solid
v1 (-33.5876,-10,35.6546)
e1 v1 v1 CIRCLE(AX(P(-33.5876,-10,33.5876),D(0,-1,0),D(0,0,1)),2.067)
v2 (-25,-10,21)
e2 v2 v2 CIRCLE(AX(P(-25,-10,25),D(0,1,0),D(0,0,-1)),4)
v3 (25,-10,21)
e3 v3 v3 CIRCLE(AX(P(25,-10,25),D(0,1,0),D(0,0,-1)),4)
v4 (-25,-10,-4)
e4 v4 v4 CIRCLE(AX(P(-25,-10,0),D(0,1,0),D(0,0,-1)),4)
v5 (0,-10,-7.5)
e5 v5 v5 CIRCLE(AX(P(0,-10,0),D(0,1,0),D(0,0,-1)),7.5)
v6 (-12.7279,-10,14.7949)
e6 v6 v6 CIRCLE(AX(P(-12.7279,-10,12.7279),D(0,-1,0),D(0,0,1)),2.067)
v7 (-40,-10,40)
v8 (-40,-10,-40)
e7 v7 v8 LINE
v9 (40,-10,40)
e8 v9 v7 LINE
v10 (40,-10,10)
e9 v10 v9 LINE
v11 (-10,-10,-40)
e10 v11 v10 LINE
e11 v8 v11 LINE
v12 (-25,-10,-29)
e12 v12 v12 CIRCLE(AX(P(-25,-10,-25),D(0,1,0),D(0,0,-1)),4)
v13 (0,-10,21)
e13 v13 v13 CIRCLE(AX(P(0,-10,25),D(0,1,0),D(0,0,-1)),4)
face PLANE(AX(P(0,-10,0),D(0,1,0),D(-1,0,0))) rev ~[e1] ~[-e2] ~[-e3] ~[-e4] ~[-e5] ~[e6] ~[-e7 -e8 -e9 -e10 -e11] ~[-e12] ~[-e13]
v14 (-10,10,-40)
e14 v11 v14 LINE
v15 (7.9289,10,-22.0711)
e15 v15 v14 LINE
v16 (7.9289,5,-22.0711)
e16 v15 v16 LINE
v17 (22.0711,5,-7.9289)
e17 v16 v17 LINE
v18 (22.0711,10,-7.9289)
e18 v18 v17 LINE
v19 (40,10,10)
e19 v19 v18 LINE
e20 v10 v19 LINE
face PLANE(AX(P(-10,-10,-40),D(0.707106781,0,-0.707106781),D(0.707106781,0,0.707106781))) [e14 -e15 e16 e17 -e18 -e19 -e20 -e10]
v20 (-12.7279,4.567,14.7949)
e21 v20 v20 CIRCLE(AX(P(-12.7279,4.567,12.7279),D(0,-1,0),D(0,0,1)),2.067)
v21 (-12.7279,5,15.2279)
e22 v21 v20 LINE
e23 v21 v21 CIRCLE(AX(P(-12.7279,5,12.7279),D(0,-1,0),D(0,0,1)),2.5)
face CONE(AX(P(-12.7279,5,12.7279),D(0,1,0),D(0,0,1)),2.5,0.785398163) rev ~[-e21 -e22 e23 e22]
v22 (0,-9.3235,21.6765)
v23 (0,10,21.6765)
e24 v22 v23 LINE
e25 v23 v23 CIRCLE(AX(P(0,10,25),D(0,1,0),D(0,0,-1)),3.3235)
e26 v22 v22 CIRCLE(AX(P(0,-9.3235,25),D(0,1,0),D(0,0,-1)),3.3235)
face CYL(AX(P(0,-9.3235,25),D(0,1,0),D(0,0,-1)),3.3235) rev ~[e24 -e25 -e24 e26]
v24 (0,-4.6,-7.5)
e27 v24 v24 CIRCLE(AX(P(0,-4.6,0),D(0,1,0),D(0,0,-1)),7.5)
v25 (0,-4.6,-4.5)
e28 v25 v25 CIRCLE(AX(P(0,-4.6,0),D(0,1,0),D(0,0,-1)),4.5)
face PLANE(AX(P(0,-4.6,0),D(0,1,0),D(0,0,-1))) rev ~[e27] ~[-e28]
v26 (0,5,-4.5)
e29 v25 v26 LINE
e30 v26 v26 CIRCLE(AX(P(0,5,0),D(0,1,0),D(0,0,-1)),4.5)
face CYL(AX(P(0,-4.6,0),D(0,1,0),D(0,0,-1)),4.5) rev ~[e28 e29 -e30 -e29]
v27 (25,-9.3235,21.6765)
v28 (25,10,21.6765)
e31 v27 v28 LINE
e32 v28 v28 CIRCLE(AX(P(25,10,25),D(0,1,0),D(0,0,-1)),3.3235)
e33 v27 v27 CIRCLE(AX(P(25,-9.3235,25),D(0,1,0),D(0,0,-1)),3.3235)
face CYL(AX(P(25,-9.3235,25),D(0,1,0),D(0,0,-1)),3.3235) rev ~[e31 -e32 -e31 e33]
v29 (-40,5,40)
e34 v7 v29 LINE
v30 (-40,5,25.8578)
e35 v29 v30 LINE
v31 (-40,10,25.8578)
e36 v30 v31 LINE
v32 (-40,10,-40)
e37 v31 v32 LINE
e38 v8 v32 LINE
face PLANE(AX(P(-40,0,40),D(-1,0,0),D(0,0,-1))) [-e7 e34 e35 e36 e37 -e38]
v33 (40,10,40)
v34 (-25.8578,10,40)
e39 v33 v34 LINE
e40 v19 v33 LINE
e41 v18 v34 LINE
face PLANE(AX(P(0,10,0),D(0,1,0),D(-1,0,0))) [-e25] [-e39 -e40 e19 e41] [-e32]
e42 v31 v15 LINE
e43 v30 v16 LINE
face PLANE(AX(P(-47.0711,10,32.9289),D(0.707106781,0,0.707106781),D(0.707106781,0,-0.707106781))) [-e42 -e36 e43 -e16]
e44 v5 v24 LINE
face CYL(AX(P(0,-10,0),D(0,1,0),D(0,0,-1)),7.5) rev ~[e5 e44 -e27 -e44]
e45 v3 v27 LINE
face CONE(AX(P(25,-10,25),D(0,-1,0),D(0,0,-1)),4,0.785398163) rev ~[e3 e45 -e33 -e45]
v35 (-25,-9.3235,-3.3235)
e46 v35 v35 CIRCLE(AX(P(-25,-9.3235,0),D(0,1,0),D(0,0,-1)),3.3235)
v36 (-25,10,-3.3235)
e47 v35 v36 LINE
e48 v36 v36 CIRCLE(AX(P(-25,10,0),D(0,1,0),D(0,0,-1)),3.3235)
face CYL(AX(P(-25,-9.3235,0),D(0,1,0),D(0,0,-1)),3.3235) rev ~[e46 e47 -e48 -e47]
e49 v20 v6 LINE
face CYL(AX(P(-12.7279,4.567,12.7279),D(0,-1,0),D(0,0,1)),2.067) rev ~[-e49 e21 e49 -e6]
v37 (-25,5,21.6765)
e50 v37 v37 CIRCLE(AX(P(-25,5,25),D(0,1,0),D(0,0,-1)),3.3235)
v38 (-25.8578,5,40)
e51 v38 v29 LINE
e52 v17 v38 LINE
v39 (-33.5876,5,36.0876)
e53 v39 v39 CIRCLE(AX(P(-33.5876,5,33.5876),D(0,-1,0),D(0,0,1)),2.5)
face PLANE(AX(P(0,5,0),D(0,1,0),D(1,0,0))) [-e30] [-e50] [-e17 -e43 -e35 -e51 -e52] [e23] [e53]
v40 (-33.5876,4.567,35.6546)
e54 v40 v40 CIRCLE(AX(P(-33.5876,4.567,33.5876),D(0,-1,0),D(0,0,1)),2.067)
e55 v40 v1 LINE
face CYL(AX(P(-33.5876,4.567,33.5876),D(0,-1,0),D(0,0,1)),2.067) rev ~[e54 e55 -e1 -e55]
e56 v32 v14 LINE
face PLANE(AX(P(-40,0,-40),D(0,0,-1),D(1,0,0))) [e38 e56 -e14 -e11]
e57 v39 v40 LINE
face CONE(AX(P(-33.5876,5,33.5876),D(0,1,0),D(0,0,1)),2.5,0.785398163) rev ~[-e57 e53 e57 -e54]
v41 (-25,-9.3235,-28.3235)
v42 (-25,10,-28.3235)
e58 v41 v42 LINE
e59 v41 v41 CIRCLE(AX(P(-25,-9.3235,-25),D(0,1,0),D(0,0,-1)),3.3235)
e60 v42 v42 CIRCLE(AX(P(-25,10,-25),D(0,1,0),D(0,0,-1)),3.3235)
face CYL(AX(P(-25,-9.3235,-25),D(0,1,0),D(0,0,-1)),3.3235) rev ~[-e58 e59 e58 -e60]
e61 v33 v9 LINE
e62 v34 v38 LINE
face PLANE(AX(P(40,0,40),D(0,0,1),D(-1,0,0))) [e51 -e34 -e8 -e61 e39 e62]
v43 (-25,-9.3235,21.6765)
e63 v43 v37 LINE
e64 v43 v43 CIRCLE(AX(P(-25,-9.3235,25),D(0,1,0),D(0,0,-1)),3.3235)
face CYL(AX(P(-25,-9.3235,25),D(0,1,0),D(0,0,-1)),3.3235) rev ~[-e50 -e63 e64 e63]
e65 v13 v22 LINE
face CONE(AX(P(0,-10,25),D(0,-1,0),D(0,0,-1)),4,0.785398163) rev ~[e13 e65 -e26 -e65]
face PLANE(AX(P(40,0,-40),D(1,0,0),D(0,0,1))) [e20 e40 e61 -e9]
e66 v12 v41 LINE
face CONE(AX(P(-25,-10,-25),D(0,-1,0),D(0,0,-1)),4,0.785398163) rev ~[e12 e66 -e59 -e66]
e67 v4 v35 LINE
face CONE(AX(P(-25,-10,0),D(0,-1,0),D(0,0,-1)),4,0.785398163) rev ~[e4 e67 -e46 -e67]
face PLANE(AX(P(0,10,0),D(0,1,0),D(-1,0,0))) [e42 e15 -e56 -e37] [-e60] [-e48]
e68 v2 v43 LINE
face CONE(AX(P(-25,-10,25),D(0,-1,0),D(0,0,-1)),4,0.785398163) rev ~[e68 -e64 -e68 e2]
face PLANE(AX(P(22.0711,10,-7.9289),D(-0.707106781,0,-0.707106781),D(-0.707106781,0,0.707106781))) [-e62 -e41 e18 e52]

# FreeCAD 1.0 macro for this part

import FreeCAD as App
import Part
import Sketcher
Q = App.Units.Quantity

doc = App.newDocument("Part")
body = doc.addObject("PartDesign::Body", "Body")

sketch1 = doc.addObject("Sketcher::SketchObject", "Sketch")
body.addObject(sketch1)
sketch1.AttachmentSupport = (doc.XZ_Plane, [""])
sketch1.MapMode = "FlatFace"
sketch1.addGeometry(Part.LineSegment(App.Vector(40, -40, 0), App.Vector(-40, -40, 0)), False)
sketch1.addGeometry(Part.LineSegment(App.Vector(-40, -40, 0), App.Vector(-40, 40, 0)), False)
sketch1.addGeometry(Part.LineSegment(App.Vector(-40, 40, 0), App.Vector(40, 40, 0)), False)
sketch1.addGeometry(Part.LineSegment(App.Vector(40, 40, 0), App.Vector(40, -40, 0)), False)
sketch1.addConstraint(Sketcher.Constraint("Coincident", 0, 2, 1, 1))
sketch1.addConstraint(Sketcher.Constraint("Coincident", 1, 2, 2, 1))
sketch1.addConstraint(Sketcher.Constraint("Coincident", 2, 2, 3, 1))
sketch1.addConstraint(Sketcher.Constraint("Coincident", 3, 2, 0, 1))
sketch1.addConstraint(Sketcher.Constraint("Horizontal", 0))
sketch1.addConstraint(Sketcher.Constraint("Vertical", 1))
sketch1.addConstraint(Sketcher.Constraint("Horizontal", 2))
sketch1.addConstraint(Sketcher.Constraint("Vertical", 3))
sketch1.addConstraint(Sketcher.Constraint("Symmetric", 0, 2, 2, 2, -1, 1))
sketch1.addConstraint(Sketcher.Constraint("Equal", 2, 1))
sketch1.addConstraint(Sketcher.Constraint("DistanceX", 0, 2, 0, 1, Q("80 mm")))
pad1 = doc.addObject("PartDesign::Pad", "Pad")
body.addObject(pad1)
pad1.Profile = sketch1
pad1.Length = 20
pad1.Midplane = True

sketch2 = doc.addObject("Sketcher::SketchObject", "Sketch001")
body.addObject(sketch2)
sketch2.AttachmentSupport = (doc.XZ_Plane, [""])
sketch2.MapMode = "FlatFace"
sketch2.AttachmentOffset = App.Placement(App.Vector(0, 0, 10), App.Rotation())
sketch2.addGeometry(Part.LineSegment(App.Vector(40, 10, 0), App.Vector(-10, -40, 0)), False)
sketch2.addGeometry(Part.LineSegment(App.Vector(-10, -40, 0), App.Vector(40, -40, 0)), False)
sketch2.addGeometry(Part.LineSegment(App.Vector(40, -40, 0), App.Vector(40, 10, 0)), False)
sketch2.addConstraint(Sketcher.Constraint("Coincident", 0, 2, 1, 1))
sketch2.addConstraint(Sketcher.Constraint("Coincident", 1, 2, 2, 1))
sketch2.addConstraint(Sketcher.Constraint("Coincident", 2, 2, 0, 1))
sketch2.addConstraint(Sketcher.Constraint("Horizontal", 1))
sketch2.addConstraint(Sketcher.Constraint("Vertical", 2))
sketch2.addConstraint(Sketcher.Constraint("Equal", 1, 2))
sketch2.addConstraint(Sketcher.Constraint("DistanceX", 1, 1, 1, 2, Q("50 mm")))
sketch2.addConstraint(Sketcher.Constraint("DistanceX", 0, 2, -1, 1, Q("10 mm")))
sketch2.addConstraint(Sketcher.Constraint("DistanceY", 0, 2, -1, 1, Q("40 mm")))
pocket1 = doc.addObject("PartDesign::Pocket", "Pocket")
body.addObject(pocket1)
pocket1.Profile = sketch2
pocket1.Type = "ThroughAll"

sketch3 = doc.addObject("Sketcher::SketchObject", "Sketch002")
body.addObject(sketch3)
sketch3.AttachmentSupport = (doc.XZ_Plane, [""])
sketch3.MapMode = "FlatFace"
sketch3.AttachmentOffset = App.Placement(App.Vector(0, 0, 10), App.Rotation())
sketch3.addGeometry(Part.Circle(App.Vector(0, 0, 0), App.Vector(0, 0, 1), 4.5), False)
sketch3.addConstraint(Sketcher.Constraint("Coincident", 0, 3, -1, 1))
sketch3.addConstraint(Sketcher.Constraint("Diameter", 0, Q("9 mm")))
doc.recompute()
hole = doc.addObject("PartDesign::Hole", "Hole")
body.addObject(hole)
hole.Profile = sketch3
hole.ThreadType = "None"
hole.Diameter = 9
hole.DepthType = "ThroughAll"
hole.HoleCutType = "Counterbore"
hole.HoleCutDiameter = 15
hole.HoleCutDepth = 5.4

sketch4 = doc.addObject("Sketcher::SketchObject", "Sketch003")
body.addObject(sketch4)
sketch4.AttachmentSupport = (doc.XZ_Plane, [""])
sketch4.MapMode = "FlatFace"
sketch4.AttachmentOffset = App.Placement(App.Vector(0, 0, -10), App.Rotation())
sketch4.addGeometry(Part.LineSegment(App.Vector(-33, 47, 0), App.Vector(22, -8, 0)), False)
sketch4.addGeometry(Part.LineSegment(App.Vector(22, -8, 0), App.Vector(8, -22, 0)), False)
sketch4.addGeometry(Part.LineSegment(App.Vector(8, -22, 0), App.Vector(-47, 33, 0)), False)
sketch4.addGeometry(Part.LineSegment(App.Vector(-47, 33, 0), App.Vector(-33, 47, 0)), False)
sketch4.addConstraint(Sketcher.Constraint("Coincident", 0, 2, 1, 1))
sketch4.addConstraint(Sketcher.Constraint("Coincident", 1, 2, 2, 1))
sketch4.addConstraint(Sketcher.Constraint("Coincident", 2, 2, 3, 1))
sketch4.addConstraint(Sketcher.Constraint("Coincident", 3, 2, 0, 1))
sketch4.addConstraint(Sketcher.Constraint("Perpendicular", 0, 1))
sketch4.addConstraint(Sketcher.Constraint("Perpendicular", 1, 2))
sketch4.addConstraint(Sketcher.Constraint("Perpendicular", 2, 3))
sketch4.addConstraint(Sketcher.Constraint("Distance", 1, Q("20 mm")))
sketch4.addConstraint(Sketcher.Constraint("Angle", 0, Q("-45 deg")))
sketch4.addConstraint(Sketcher.Constraint("DistanceX", 2, 2, 1, 2, Q("55 mm")))
sketch4.addConstraint(Sketcher.Constraint("DistanceX", -1, 1, 0, 2, Q("22.071 mm")))
sketch4.addConstraint(Sketcher.Constraint("DistanceY", 0, 2, -1, 1, Q("7.929 mm")))
pocket2 = doc.addObject("PartDesign::Pocket", "Pocket001")
body.addObject(pocket2)
pocket2.Profile = sketch4
pocket2.Length = 5
pocket2.Reversed = True

sketch5 = doc.addObject("Sketcher::SketchObject", "Sketch004")
body.addObject(sketch5)
sketch5.AttachmentSupport = (doc.XZ_Plane, [""])
sketch5.MapMode = "FlatFace"
sketch5.AttachmentOffset = App.Placement(App.Vector(0, 0, 10), App.Rotation())
sketch5.addGeometry(Part.Circle(App.Vector(-25, 25, 0), App.Vector(0, 0, 1), 3.3), False)
sketch5.addGeometry(Part.Circle(App.Vector(-25, 0, 0), App.Vector(0, 0, 1), 3.3), False)
sketch5.addGeometry(Part.Circle(App.Vector(-25, -25, 0), App.Vector(0, 0, 1), 3.3), False)
sketch5.addGeometry(Part.Circle(App.Vector(0, 25, 0), App.Vector(0, 0, 1), 3.3), False)
sketch5.addGeometry(Part.Circle(App.Vector(25, 25, 0), App.Vector(0, 0, 1), 3.3), False)
sketch5.addConstraint(Sketcher.Constraint("Equal", 0, 1))
sketch5.addConstraint(Sketcher.Constraint("Equal", 1, 2))
sketch5.addConstraint(Sketcher.Constraint("Equal", 2, 3))
sketch5.addConstraint(Sketcher.Constraint("Equal", 3, 4))
sketch5.addConstraint(Sketcher.Constraint("Symmetric", 2, 3, 4, 3, -1, 1))
sketch5.addConstraint(Sketcher.Constraint("Symmetric", 0, 3, 4, 3, -2))
sketch5.addConstraint(Sketcher.Constraint("PointOnObject", 1, 3, -1))
sketch5.addConstraint(Sketcher.Constraint("PointOnObject", 3, 3, -2))
sketch5.addConstraint(Sketcher.Constraint("Horizontal", 0, 3, 3, 3))
sketch5.addConstraint(Sketcher.Constraint("Vertical", 0, 3, 1, 3))
sketch5.addConstraint(Sketcher.Constraint("Diameter", 0, Q("6.647 mm")))
sketch5.addConstraint(Sketcher.Constraint("DistanceX", 0, 3, -1, 1, Q("25 mm")))
sketch5.addConstraint(Sketcher.Constraint("DistanceY", -1, 1, 0, 3, Q("25 mm")))
doc.recompute()
hole2 = doc.addObject("PartDesign::Hole", "Hole001")
body.addObject(hole2)
hole2.Profile = sketch5
hole2.ThreadType = "None"
hole2.Diameter = 6.647
hole2.DepthType = "ThroughAll"
hole2.HoleCutType = "Countersink"
hole2.HoleCutDiameter = 8
hole2.HoleCutCountersinkAngle = 90

sketch6 = doc.addObject("Sketcher::SketchObject", "Sketch005")
body.addObject(sketch6)
sketch6.AttachmentSupport = (doc.XZ_Plane, [""])
sketch6.MapMode = "FlatFace"
sketch6.AttachmentOffset = App.Placement(App.Vector(0, 0, -5), App.Rotation())
sketch6.addGeometry(Part.Circle(App.Vector(-12.7, 12.7, 0), App.Vector(0, 0, 1), 2.1), False)
sketch6.addGeometry(Part.Circle(App.Vector(-33.6, 33.6, 0), App.Vector(0, 0, 1), 2.1), False)
sketch6.addConstraint(Sketcher.Constraint("Equal", 0, 1))
sketch6.addConstraint(Sketcher.Constraint("Diameter", 0, Q("4.134 mm")))
sketch6.addConstraint(Sketcher.Constraint("DistanceX", 0, 3, -1, 1, Q("12.728 mm")))
sketch6.addConstraint(Sketcher.Constraint("DistanceY", -1, 1, 0, 3, Q("12.728 mm")))
sketch6.addConstraint(Sketcher.Constraint("DistanceX", 1, 3, -1, 1, Q("33.5876 mm")))
sketch6.addConstraint(Sketcher.Constraint("DistanceY", -1, 1, 1, 3, Q("33.5876 mm")))
doc.recompute()
hole3 = doc.addObject("PartDesign::Hole", "Hole002")
body.addObject(hole3)
hole3.Profile = sketch6
hole3.ThreadType = "None"
hole3.Diameter = 4.134
hole3.DepthType = "ThroughAll"
hole3.HoleCutType = "Countersink"
hole3.HoleCutDiameter = 5
hole3.HoleCutCountersinkAngle = 90
hole3.Reversed = True

doc.recompute()
